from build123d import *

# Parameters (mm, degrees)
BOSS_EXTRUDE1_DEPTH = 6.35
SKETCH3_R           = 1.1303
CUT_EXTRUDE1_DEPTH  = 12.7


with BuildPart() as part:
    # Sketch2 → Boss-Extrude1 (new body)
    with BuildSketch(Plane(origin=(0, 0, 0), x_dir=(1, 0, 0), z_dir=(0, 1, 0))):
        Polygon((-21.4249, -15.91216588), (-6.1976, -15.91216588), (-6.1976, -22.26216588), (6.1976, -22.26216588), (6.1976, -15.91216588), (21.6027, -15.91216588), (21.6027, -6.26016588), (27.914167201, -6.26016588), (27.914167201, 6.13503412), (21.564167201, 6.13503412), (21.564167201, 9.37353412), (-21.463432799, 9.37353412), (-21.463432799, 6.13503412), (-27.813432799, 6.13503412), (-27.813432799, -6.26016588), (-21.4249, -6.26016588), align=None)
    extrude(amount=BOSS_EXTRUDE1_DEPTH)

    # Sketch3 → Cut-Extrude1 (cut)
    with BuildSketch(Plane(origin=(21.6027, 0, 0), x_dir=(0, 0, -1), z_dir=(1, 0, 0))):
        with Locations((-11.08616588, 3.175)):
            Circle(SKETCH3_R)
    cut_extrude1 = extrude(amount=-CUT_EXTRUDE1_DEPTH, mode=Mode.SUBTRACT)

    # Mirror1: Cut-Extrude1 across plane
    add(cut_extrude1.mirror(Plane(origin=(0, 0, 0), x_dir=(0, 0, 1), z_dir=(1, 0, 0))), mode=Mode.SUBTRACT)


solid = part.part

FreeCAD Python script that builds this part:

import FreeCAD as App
import Part
import Sketcher
from FreeCAD import Vector
Q = App.Units.Quantity

doc = App.newDocument("Part")
body = doc.addObject("PartDesign::Body", "Body")

sketch1 = body.newObject("Sketcher::SketchObject", "Sketch")
sketch1.AttachmentSupport = (doc.getObject("XZ_Plane"), [""])
sketch1.MapMode = "FlatFace"
sketch1.addGeometry([
    Part.LineSegment(Vector(-21.4, 15.9, 0), Vector(-6.2, 15.9, 0)),
    Part.LineSegment(Vector(-6.2, 15.9, 0), Vector(-6.2, 22.3, 0)),
    Part.LineSegment(Vector(-6.2, 22.3, 0), Vector(6.2, 22.3, 0)),
    Part.LineSegment(Vector(6.2, 22.3, 0), Vector(6.2, 15.9, 0)),
    Part.LineSegment(Vector(6.2, 15.9, 0), Vector(21.6, 15.9, 0)),
    Part.LineSegment(Vector(21.6, 15.9, 0), Vector(21.6, 6.3, 0)),
    Part.LineSegment(Vector(21.6, 6.3, 0), Vector(27.9, 6.3, 0)),
    Part.LineSegment(Vector(27.9, 6.3, 0), Vector(27.9, -6.1, 0)),
    Part.LineSegment(Vector(27.9, -6.1, 0), Vector(21.6, -6.1, 0)),
    Part.LineSegment(Vector(21.6, -6.1, 0), Vector(21.6, -9.4, 0)),
    Part.LineSegment(Vector(21.6, -9.4, 0), Vector(-21.5, -9.4, 0)),
    Part.LineSegment(Vector(-21.5, -9.4, 0), Vector(-21.5, -6.1, 0)),
    Part.LineSegment(Vector(-21.5, -6.1, 0), Vector(-27.8, -6.1, 0)),
    Part.LineSegment(Vector(-27.8, -6.1, 0), Vector(-27.8, 6.3, 0)),
    Part.LineSegment(Vector(-27.8, 6.3, 0), Vector(-21.4, 6.3, 0)),
    Part.LineSegment(Vector(-21.4, 6.3, 0), Vector(-21.4, 15.9, 0)),
], False)
sketch1.addConstraint([
    Sketcher.Constraint("Coincident", 0, 2, 1, 1),
    Sketcher.Constraint("Coincident", 1, 2, 2, 1),
    Sketcher.Constraint("Coincident", 2, 2, 3, 1),
    Sketcher.Constraint("Coincident", 3, 2, 4, 1),
    Sketcher.Constraint("Coincident", 4, 2, 5, 1),
    Sketcher.Constraint("Coincident", 5, 2, 6, 1),
    Sketcher.Constraint("Coincident", 6, 2, 7, 1),
    Sketcher.Constraint("Coincident", 7, 2, 8, 1),
    Sketcher.Constraint("Coincident", 8, 2, 9, 1),
    Sketcher.Constraint("Coincident", 9, 2, 10, 1),
    Sketcher.Constraint("Coincident", 10, 2, 11, 1),
    Sketcher.Constraint("Coincident", 11, 2, 12, 1),
    Sketcher.Constraint("Coincident", 12, 2, 13, 1),
    Sketcher.Constraint("Coincident", 13, 2, 14, 1),
    Sketcher.Constraint("Coincident", 14, 2, 15, 1),
    Sketcher.Constraint("Coincident", 15, 2, 0, 1),
    Sketcher.Constraint("Horizontal", 0),
    Sketcher.Constraint("Vertical", 1),
    Sketcher.Constraint("Horizontal", 2),
    Sketcher.Constraint("Vertical", 3),
    Sketcher.Constraint("Horizontal", 4),
    Sketcher.Constraint("Vertical", 5),
    Sketcher.Constraint("Horizontal", 6),
    Sketcher.Constraint("Vertical", 7),
    Sketcher.Constraint("Horizontal", 8),
    Sketcher.Constraint("Vertical", 9),
    Sketcher.Constraint("Horizontal", 10),
    Sketcher.Constraint("Vertical", 11),
    Sketcher.Constraint("Horizontal", 12),
    Sketcher.Constraint("Vertical", 13),
    Sketcher.Constraint("Horizontal", 14),
    Sketcher.Constraint("Vertical", 15),
    Sketcher.Constraint("Symmetric", 0, 2, 3, 2, -2),
    Sketcher.Constraint("Horizontal", 8, 2, 11, 2),
    Sketcher.Constraint("Horizontal", 6, 2, 13, 2),
    Sketcher.Constraint("Equal", 8, 12),
    Sketcher.Constraint("Equal", 12, 1),
    Sketcher.Constraint("Equal", 2, 7),
    Sketcher.Constraint("DistanceX", 8, 2, 8, 1, Q("0.25 in")),
    Sketcher.Constraint("DistanceY", 5, 2, 5, 1, Q("0.38 in")),
    Sketcher.Constraint("DistanceX", 2, 1, 2, 2, Q("0.488 in")),
    Sketcher.Constraint("DistanceX", 10, 2, 10, 1, Q("1.694 in")),
    Sketcher.Constraint("DistanceX", 0, 1, 0, 2, Q("0.5995 in")),
    Sketcher.Constraint("DistanceX", 4, 1, 4, 2, Q("0.6065 in")),
    Sketcher.Constraint("DistanceY", 9, 2, 9, 1, Q("0.1275 in")),
    Sketcher.Constraint("DistanceX", 6, 1, 6, 2, 6.311467),
    Sketcher.Constraint("DistanceY", -1, 1, 0, 2, 15.912166),
])
pad1 = body.newObject("PartDesign::Pad", "Pad")
pad1.Profile = sketch1
pad1.Length = Q("0.25 in")
pad1.Reversed = True

sketch2 = body.newObject("Sketcher::SketchObject", "Sketch001")
sketch2.AttachmentSupport = (doc.getObject("YZ_Plane"), [""])
sketch2.MapMode = "FlatFace"
sketch2.AttachmentOffset = App.Placement(Vector(0, 0, 0.8505 * 25.4), App.Rotation())
sketch2.addGeometry(Part.Circle(Vector(3.2, 11.1, 0), Vector(0, 0, 1), 1.1), False)
sketch2.addConstraint([
    Sketcher.Constraint("Diameter", 0, Q("0.089 in")),
    Sketcher.Constraint("DistanceX", -1, 1, 0, 3, Q("0.125 in")),
    Sketcher.Constraint("DistanceY", -1, 1, 0, 3, 11.086166),
])
pocket1 = body.newObject("PartDesign::Pocket", "Pocket")
pocket1.Profile = sketch2
pocket1.Length = Q("0.5 in")
doc.recompute()

mirrored = body.newObject("PartDesign::Mirrored", "Mirrored")
mirrored.Originals = [pocket1]
mirrored.MirrorPlane = (doc.getObject("YZ_Plane"), [""])
body.Tip = mirrored

doc.recompute()
